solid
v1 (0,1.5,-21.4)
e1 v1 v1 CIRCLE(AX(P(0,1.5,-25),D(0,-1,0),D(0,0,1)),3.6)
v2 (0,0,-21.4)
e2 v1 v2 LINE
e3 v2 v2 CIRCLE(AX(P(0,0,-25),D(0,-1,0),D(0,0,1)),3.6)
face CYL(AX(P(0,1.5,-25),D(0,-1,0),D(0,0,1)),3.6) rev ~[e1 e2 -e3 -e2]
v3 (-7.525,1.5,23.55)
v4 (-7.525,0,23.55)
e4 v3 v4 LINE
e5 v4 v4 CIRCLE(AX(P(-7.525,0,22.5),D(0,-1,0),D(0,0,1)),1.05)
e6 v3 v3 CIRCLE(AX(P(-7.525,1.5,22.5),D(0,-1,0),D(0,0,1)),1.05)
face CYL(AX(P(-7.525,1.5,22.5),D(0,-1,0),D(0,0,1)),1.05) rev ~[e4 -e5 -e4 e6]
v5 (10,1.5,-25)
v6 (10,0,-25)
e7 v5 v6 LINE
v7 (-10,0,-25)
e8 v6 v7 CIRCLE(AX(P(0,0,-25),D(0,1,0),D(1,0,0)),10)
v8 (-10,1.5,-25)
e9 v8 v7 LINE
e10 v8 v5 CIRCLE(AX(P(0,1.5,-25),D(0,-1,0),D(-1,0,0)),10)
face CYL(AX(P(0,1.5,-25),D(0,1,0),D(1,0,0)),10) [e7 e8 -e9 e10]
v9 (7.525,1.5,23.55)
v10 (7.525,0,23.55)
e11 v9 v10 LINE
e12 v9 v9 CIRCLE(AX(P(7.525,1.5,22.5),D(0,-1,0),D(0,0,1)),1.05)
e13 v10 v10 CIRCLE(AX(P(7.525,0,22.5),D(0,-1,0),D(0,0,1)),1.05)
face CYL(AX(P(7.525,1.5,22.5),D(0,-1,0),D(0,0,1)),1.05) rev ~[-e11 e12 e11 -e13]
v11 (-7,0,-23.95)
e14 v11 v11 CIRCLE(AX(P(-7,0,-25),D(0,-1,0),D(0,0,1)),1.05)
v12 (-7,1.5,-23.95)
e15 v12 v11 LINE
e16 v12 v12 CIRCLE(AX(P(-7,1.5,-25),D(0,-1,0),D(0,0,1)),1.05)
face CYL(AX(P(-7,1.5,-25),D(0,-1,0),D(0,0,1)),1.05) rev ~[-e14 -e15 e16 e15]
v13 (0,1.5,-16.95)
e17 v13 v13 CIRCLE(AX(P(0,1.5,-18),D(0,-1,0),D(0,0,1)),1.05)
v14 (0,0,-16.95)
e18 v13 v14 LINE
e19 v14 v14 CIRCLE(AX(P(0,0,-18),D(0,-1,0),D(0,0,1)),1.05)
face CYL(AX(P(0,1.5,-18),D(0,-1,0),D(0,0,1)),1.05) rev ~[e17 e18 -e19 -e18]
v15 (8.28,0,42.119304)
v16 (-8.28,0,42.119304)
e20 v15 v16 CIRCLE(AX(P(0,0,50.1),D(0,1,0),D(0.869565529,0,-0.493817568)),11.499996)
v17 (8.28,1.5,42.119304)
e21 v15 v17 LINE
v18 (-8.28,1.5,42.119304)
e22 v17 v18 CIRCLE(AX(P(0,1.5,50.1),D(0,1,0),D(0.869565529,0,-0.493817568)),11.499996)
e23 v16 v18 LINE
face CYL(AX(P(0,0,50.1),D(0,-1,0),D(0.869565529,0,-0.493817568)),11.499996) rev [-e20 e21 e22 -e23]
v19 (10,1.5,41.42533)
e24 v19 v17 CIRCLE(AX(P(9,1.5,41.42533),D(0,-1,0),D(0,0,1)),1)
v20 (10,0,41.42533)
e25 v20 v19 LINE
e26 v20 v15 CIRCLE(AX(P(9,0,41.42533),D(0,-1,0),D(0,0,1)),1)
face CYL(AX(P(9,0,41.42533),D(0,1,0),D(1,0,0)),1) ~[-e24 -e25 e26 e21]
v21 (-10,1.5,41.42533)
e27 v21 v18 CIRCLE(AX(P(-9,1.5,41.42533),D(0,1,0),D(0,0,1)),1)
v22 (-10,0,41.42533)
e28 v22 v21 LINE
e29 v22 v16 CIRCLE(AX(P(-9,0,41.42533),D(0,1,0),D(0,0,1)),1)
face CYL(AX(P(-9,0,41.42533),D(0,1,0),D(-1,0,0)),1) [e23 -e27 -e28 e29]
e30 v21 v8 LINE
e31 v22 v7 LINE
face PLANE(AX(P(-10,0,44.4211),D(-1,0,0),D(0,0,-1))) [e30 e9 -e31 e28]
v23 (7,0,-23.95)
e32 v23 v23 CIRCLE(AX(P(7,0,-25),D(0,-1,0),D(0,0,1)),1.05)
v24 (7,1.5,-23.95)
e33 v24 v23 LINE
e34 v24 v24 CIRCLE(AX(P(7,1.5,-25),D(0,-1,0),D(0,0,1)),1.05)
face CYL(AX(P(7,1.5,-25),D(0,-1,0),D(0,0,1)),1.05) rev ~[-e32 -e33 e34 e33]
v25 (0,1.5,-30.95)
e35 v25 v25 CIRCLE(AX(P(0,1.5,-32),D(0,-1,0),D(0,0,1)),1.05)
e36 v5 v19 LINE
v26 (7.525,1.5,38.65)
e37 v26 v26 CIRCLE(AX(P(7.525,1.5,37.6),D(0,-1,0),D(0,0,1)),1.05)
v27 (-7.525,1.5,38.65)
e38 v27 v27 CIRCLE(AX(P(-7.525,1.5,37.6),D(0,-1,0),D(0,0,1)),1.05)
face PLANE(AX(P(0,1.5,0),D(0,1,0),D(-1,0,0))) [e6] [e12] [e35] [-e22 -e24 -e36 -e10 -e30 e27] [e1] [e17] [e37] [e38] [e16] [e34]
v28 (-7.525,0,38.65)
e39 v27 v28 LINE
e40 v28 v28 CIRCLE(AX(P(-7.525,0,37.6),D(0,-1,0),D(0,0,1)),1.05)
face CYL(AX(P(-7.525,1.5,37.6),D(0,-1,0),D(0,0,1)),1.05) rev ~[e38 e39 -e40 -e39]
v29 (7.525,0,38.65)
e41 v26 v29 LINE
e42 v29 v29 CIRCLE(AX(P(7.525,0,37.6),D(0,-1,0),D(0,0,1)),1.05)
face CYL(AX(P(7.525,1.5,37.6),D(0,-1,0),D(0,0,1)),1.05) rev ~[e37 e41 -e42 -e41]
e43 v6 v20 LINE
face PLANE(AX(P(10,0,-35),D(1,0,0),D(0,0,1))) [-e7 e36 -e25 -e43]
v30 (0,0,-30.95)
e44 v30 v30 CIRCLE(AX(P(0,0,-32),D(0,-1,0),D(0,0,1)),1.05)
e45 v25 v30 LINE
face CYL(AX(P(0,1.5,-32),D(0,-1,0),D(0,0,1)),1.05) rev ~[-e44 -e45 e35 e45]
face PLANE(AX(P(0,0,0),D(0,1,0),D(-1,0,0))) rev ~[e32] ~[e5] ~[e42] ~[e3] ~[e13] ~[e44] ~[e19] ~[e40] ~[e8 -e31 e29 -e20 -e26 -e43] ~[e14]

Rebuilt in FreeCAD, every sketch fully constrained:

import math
import FreeCAD as App
import Part
import Sketcher

V = App.Vector


def edges_at(feature, points):
    """Names of the edges that pass closest to the given points."""
    edges = feature.Shape.Edges
    near = lambda p: min(range(len(edges)), key=lambda i: edges[i].distToShape(Part.Vertex(*p))[0])
    return sorted({f"Edge{near(p) + 1}" for p in points})

doc = App.newDocument("Part")
body = doc.addObject("PartDesign::Body", "Body")

sketch1 = body.newObject("Sketcher::SketchObject", "Sketch")
sketch1.AttachmentSupport = (doc.getObject("XZ_Plane"), [""])
sketch1.MapMode = "FlatFace"
sketch1.addGeometry([
    Part.LineSegment(V(10, -35, 0), V(-10, -35, 0)),
    Part.LineSegment(V(-10, -35, 0), V(-10, 44.4211, 0)),
    Part.ArcOfCircle(Part.Circle(V(0, 50.1, 0), V(0, 0, 1), 11.499996), math.radians(-150.40819), math.radians(-29.59181)),
    Part.LineSegment(V(10, 44.4211, 0), V(10, -35, 0)),
], False)
sketch1.addConstraint([
    Sketcher.Constraint("Coincident", 0, 2, 1, 1),
    Sketcher.Constraint("Coincident", 1, 2, 2, 1),
    Sketcher.Constraint("Coincident", 2, 2, 3, 1),
    Sketcher.Constraint("Coincident", 3, 2, 0, 1),
    Sketcher.Constraint("Horizontal", 0),
    Sketcher.Constraint("Vertical", 1),
    Sketcher.Constraint("Vertical", 3),
    Sketcher.Constraint("Symmetric", 1, 2, 2, 2, -2),
    Sketcher.Constraint("Radius", 2, 11.5),
    Sketcher.Constraint("DistanceX", 0, 2, 0, 1, 20.0),
    Sketcher.Constraint("DistanceY", 0, 2, -1, 1, 35.0),
    Sketcher.Constraint("DistanceY", 0, 2, 2, 3, 85.1),
])
pad1 = body.newObject("PartDesign::Pad", "Pad")
pad1.Profile = sketch1
pad1.Length = 1.5
pad1.Reversed = True

sketch2 = body.newObject("Sketcher::SketchObject", "Sketch001")
sketch2.AttachmentSupport = (doc.getObject("XZ_Plane"), [""])
sketch2.MapMode = "FlatFace"
sketch2.AttachmentOffset = App.Placement(V(0, 0, -1.5), App.Rotation())
sketch2.addGeometry([
    Part.LineSegment(V(-10, -35, 0), V(-10, -25, 0)),
    Part.ArcOfCircle(Part.Circle(V(0, -25, 0), V(0, 0, 1), 10), math.radians(180), math.radians(270)),
    Part.LineSegment(V(0, -35, 0), V(-10, -35, 0)),
    Part.ArcOfCircle(Part.Circle(V(0, -25, 0), V(0, 0, 1), 10), math.radians(-90), math.radians(0)),
    Part.LineSegment(V(10, -25, 0), V(10, -35, 0)),
    Part.LineSegment(V(10, -35, 0), V(0, -35, 0)),
], False)
sketch2.addConstraint([
    Sketcher.Constraint("Tangent", 0, 2, 1, 1),
    Sketcher.Constraint("Tangent", 1, 2, 2, 1),
    Sketcher.Constraint("Coincident", 2, 2, 0, 1),
    Sketcher.Constraint("Tangent", 3, 2, 4, 1),
    Sketcher.Constraint("Coincident", 4, 2, 5, 1),
    Sketcher.Constraint("Tangent", 5, 2, 3, 1),
    Sketcher.Constraint("Vertical", 0),
    Sketcher.Constraint("Horizontal", 2),
    Sketcher.Constraint("Vertical", 4),
    Sketcher.Constraint("Horizontal", 5),
    Sketcher.Constraint("Coincident", 3, 3, 1, 3),
    Sketcher.Constraint("Equal", 1, 3),
    Sketcher.Constraint("PointOnObject", 1, 3, -2),
    Sketcher.Constraint("Radius", 1, 10.0),
    Sketcher.Constraint("DistanceY", 1, 3, -1, 1, 25.0),
])
pocket1 = body.newObject("PartDesign::Pocket", "Pocket")
pocket1.Profile = sketch2
pocket1.Length = 10
pocket1.Reversed = True

sketch3 = body.newObject("Sketcher::SketchObject", "Sketch002")
sketch3.AttachmentSupport = (doc.getObject("XZ_Plane"), [""])
sketch3.MapMode = "FlatFace"
sketch3.AttachmentOffset = App.Placement(V(0, 0, -1.5), App.Rotation())
sketch3.addGeometry([
    Part.Circle(V(0, -32, 0), V(0, 0, 1), 1.05),
    Part.Circle(V(7, -25, 0), V(0, 0, 1), 1.05),
    Part.Circle(V(0, -18, 0), V(0, 0, 1), 1.05),
    Part.Circle(V(-7, -25, 0), V(0, 0, 1), 1.05),
], False)
sketch3.addConstraint([
    Sketcher.Constraint("Equal", 0, 1),
    Sketcher.Constraint("Equal", 1, 2),
    Sketcher.Constraint("Equal", 2, 3),
    Sketcher.Constraint("Symmetric", 1, 3, 3, 3, -2),
    Sketcher.Constraint("PointOnObject", 0, 3, -2),
    Sketcher.Constraint("PointOnObject", 2, 3, -2),
    Sketcher.Constraint("Diameter", 0, 2.1),
    Sketcher.Constraint("DistanceY", 0, 3, -1, 1, 32.0),
    Sketcher.Constraint("DistanceX", -1, 1, 1, 3, 7.0),
    Sketcher.Constraint("DistanceY", 1, 3, -1, 1, 25.0),
    Sketcher.Constraint("DistanceY", 2, 3, -1, 1, 18.0),
])
doc.recompute()
hole = body.newObject("PartDesign::Hole", "Hole")
hole.Profile = sketch3
hole.ThreadType = "None"
hole.Diameter = 2.1
hole.DepthType = "Dimension"
hole.Depth = 1.5
hole.DrillPoint = "Flat"
hole.Reversed = True
doc.recompute()

fillet = body.newObject("PartDesign::Fillet", "Fillet")
fillet.Base = (hole, edges_at(hole, [(-10, 0.75, 44.421), (10, 0.75, 44.421)]))
fillet.Radius = 1

sketch4 = body.newObject("Sketcher::SketchObject", "Sketch003")
sketch4.AttachmentSupport = (doc.getObject("XZ_Plane"), [""])
sketch4.MapMode = "FlatFace"
sketch4.AttachmentOffset = App.Placement(V(0, 0, -1.5), App.Rotation())
sketch4.addGeometry(Part.Circle(V(0, -25, 0), V(0, 0, 1), 3.6), False)
sketch4.addConstraint([
    Sketcher.Constraint("PointOnObject", 0, 3, -2),
    Sketcher.Constraint("Diameter", 0, 7.2),
    Sketcher.Constraint("DistanceY", 0, 3, -1, 1, 25.0),
])
doc.recompute()
hole2 = body.newObject("PartDesign::Hole", "Hole001")
hole2.Profile = sketch4
hole2.ThreadType = "None"
hole2.Diameter = 7.2
hole2.DepthType = "Dimension"
hole2.Depth = 1.5
hole2.DrillPoint = "Flat"
hole2.Reversed = True

sketch5 = body.newObject("Sketcher::SketchObject", "Sketch004")
sketch5.AttachmentSupport = (doc.getObject("XZ_Plane"), [""])
sketch5.MapMode = "FlatFace"
sketch5.AttachmentOffset = App.Placement(V(0, 0, -1.5), App.Rotation())
sketch5.addGeometry([
    Part.Circle(V(-7.525, 22.5, 0), V(0, 0, 1), 1.05),
    Part.Circle(V(7.525, 22.5, 0), V(0, 0, 1), 1.05),
    Part.Circle(V(7.525, 37.6, 0), V(0, 0, 1), 1.05),
    Part.Circle(V(-7.525, 37.6, 0), V(0, 0, 1), 1.05),
], False)
sketch5.addConstraint([
    Sketcher.Constraint("Equal", 0, 1),
    Sketcher.Constraint("Equal", 1, 2),
    Sketcher.Constraint("Equal", 2, 3),
    Sketcher.Constraint("Symmetric", 0, 3, 1, 3, -2),
    Sketcher.Constraint("Symmetric", 2, 3, 3, 3, -2),
    Sketcher.Constraint("Vertical", 1, 3, 2, 3),
    Sketcher.Constraint("Diameter", 0, 2.1),
    Sketcher.Constraint("DistanceY", -1, 1, 0, 3, 22.5),
    Sketcher.Constraint("DistanceY", -1, 1, 2, 3, 37.6),
    Sketcher.Constraint("DistanceX", 0, 3, 1, 3, 15.05),
])
doc.recompute()
hole3 = body.newObject("PartDesign::Hole", "Hole002")
hole3.Profile = sketch5
hole3.ThreadType = "None"
hole3.Diameter = 2.1
hole3.DepthType = "ThroughAll"
hole3.Reversed = True

doc.recompute()
